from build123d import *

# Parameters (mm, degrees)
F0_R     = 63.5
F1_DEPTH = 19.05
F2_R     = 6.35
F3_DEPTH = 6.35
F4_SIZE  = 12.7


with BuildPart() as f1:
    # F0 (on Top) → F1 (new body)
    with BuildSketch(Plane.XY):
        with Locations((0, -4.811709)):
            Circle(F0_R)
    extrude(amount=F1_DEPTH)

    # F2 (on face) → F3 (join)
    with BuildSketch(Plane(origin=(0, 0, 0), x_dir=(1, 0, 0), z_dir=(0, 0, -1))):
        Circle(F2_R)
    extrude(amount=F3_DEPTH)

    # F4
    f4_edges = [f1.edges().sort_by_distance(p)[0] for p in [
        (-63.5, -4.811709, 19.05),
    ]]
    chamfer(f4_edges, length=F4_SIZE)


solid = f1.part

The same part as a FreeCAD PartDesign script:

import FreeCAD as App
import Part
import Sketcher

V = App.Vector
Q = App.Units.Quantity


def edges_at(feature, points):
    """Names of the edges that pass closest to the given points."""
    edges = feature.Shape.Edges
    near = lambda p: min(range(len(edges)), key=lambda i: edges[i].distToShape(Part.Vertex(*p))[0])
    return sorted({f"Edge{near(p) + 1}" for p in points})

doc = App.newDocument("Part")
params = doc.addObject("Spreadsheet::Sheet", "Params")
for row, (alias, value) in enumerate([
    ("sketch1_diameter", "5 in"),
    ("pad1_length", "0.75 in"),
    ("sketch2_diameter", "0.5 in"),
    ("pad2_length", "0.25 in"),
    ("chamfer_size", "0.5 in"),
], start=1):
    params.set(f"A{row}", alias)
    params.set(f"B{row}", "=" + value)
    params.setAlias(f"B{row}", alias)

body = doc.addObject("PartDesign::Body", "Body")

# Sketch on XY plane
sketch1 = body.newObject("Sketcher::SketchObject", "Sketch")
sketch1.AttachmentSupport = (doc.getObject("XY_Plane"), [""])
sketch1.MapMode = "FlatFace"
sketch1.addGeometry(Part.Circle(V(0, -4.811709, 0), V(0, 0, 1), 63.5), False)
sketch1.addConstraint([
    Sketcher.Constraint("PointOnObject", 0, 3, -2),
    Sketcher.Constraint("Diameter", 0, Q("5 in")),
    Sketcher.Constraint("DistanceY", 0, 3, -1, 1, 4.811709),
])
sketch1.setExpression("Constraints[1]", "Params.sketch1_diameter")
pad1 = body.newObject("PartDesign::Pad", "Pad")
pad1.Profile = sketch1
pad1.setExpression("Length", "Params.pad1_length")

# Sketch on XY plane
sketch2 = body.newObject("Sketcher::SketchObject", "Sketch001")
sketch2.AttachmentSupport = (doc.getObject("XY_Plane"), [""])
sketch2.MapMode = "FlatFace"
sketch2.addGeometry(Part.Circle(V(0, 0, 0), V(0, 0, 1), 6.35), False)
sketch2.addConstraint([
    Sketcher.Constraint("Coincident", 0, 3, -1, 1),
    Sketcher.Constraint("Diameter", 0, Q("0.5 in")),
])
sketch2.setExpression("Constraints[1]", "Params.sketch2_diameter")
pad2 = body.newObject("PartDesign::Pad", "Pad001")
pad2.Profile = sketch2
pad2.setExpression("Length", "Params.pad2_length")
pad2.Reversed = True
doc.recompute()

chamfer = body.newObject("PartDesign::Chamfer", "Chamfer")
chamfer.Base = (pad2, edges_at(pad2, [(-63.5, -4.812, 19.05)]))
chamfer.setExpression("Size", "Params.chamfer_size")

doc.recompute()
